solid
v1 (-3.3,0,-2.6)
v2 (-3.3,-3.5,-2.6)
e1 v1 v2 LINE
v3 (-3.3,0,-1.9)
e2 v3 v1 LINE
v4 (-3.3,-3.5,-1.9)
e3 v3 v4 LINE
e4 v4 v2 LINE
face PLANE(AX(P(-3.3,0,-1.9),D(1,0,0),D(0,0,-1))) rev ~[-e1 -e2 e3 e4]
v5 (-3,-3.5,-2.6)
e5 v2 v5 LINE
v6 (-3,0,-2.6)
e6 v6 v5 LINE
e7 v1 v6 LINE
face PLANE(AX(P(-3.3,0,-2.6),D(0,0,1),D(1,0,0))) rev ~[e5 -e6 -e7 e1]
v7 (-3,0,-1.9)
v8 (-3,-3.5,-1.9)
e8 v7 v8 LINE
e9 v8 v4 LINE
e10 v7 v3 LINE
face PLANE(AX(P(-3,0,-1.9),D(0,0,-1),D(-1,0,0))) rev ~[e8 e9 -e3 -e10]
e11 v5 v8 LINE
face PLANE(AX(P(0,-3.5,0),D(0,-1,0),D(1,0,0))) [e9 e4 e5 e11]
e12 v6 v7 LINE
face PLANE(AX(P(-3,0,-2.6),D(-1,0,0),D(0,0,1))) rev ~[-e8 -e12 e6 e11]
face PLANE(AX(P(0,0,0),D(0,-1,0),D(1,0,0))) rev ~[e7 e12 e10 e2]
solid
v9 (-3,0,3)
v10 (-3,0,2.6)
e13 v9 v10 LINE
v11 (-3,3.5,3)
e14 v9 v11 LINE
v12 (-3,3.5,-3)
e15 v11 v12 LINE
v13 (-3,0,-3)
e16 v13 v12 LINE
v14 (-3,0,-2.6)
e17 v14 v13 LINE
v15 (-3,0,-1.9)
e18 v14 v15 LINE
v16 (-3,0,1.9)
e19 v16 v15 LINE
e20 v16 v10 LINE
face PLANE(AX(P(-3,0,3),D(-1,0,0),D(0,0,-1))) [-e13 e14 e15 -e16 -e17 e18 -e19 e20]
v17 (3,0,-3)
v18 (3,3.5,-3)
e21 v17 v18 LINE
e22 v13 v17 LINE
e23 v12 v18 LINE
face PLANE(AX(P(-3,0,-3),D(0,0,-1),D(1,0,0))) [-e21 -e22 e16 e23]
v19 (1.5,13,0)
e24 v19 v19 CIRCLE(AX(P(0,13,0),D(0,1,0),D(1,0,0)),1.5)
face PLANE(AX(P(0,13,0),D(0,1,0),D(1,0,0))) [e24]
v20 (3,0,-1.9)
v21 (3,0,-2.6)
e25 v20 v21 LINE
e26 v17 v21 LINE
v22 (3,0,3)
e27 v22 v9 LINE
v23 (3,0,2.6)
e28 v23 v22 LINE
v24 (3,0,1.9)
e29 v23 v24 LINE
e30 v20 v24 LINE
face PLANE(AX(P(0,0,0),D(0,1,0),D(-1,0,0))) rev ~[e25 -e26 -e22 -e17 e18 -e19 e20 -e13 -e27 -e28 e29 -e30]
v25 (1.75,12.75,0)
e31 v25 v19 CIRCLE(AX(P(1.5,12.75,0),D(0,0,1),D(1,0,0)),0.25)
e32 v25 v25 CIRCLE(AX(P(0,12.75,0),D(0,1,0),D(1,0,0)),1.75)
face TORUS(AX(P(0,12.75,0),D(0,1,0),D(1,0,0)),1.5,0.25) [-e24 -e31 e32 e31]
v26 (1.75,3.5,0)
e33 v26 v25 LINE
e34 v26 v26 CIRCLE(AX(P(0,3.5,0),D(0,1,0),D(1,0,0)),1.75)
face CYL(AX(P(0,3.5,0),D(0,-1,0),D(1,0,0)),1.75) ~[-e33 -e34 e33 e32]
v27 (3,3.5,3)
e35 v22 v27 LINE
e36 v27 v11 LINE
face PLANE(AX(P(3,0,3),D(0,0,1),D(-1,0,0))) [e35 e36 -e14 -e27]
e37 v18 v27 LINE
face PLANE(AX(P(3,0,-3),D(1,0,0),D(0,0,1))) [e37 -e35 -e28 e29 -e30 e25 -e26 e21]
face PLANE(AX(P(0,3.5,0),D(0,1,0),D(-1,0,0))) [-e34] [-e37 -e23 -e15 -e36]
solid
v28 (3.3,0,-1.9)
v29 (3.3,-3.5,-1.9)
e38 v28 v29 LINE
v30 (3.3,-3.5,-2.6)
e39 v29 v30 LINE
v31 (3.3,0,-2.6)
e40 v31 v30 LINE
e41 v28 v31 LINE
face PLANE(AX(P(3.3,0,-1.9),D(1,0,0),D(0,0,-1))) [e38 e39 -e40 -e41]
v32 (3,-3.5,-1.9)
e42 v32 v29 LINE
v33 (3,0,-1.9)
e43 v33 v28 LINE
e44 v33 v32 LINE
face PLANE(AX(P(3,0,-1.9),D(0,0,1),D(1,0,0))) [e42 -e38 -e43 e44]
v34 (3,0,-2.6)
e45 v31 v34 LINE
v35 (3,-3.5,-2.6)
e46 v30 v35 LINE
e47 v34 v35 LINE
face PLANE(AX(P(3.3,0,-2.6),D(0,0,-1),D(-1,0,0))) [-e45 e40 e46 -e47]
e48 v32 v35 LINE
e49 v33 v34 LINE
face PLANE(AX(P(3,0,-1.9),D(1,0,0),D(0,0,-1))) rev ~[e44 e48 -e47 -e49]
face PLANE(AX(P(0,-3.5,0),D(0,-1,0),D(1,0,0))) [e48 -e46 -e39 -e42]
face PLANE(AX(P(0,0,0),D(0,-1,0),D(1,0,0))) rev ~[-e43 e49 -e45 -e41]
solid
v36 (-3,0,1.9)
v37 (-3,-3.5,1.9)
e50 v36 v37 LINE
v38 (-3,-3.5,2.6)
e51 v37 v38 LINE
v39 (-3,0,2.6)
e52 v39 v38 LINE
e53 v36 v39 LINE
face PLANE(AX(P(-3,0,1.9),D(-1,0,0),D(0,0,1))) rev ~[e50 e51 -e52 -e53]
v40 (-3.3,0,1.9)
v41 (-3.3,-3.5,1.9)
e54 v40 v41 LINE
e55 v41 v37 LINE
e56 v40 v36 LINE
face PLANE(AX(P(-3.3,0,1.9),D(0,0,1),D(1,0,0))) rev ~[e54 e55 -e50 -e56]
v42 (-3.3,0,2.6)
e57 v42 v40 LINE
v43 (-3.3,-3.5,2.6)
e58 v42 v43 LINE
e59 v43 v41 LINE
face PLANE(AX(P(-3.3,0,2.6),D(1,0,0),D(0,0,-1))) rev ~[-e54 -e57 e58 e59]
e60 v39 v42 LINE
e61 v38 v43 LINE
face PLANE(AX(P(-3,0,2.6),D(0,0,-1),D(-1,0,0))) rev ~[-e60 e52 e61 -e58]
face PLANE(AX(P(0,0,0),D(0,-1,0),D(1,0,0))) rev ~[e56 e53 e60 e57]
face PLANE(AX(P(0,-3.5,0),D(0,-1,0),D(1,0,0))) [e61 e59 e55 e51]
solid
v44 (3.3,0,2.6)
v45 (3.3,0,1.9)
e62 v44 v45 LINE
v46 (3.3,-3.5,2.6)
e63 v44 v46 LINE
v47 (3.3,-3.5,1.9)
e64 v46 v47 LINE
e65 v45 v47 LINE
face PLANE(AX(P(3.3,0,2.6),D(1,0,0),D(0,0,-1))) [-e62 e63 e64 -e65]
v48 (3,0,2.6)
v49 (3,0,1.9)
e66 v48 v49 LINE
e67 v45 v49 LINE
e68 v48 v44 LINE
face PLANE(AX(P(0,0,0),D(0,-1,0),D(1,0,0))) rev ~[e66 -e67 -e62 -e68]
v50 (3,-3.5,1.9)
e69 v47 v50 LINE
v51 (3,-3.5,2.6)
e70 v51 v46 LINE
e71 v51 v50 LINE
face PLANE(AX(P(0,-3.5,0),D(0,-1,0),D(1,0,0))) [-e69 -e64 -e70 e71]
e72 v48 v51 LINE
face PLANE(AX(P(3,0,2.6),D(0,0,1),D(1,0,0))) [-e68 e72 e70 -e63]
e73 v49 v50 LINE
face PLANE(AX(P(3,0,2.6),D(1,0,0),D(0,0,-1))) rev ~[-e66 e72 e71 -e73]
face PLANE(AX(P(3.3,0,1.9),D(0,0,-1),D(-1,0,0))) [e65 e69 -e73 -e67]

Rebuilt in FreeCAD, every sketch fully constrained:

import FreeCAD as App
import Part
import Sketcher


def edges_at(feature, points):
    """Names of the edges that pass closest to the given points."""
    edges = feature.Shape.Edges
    near = lambda p: min(range(len(edges)), key=lambda i: edges[i].distToShape(Part.Vertex(*p))[0])
    return sorted({f"Edge{near(p) + 1}" for p in points})

doc = App.newDocument("Part")
body = doc.addObject("PartDesign::Body", "Body")
body.AllowCompound = True

sketch1 = body.newObject("Sketcher::SketchObject", "Sketch")
sketch1.AttachmentSupport = (doc.getObject("XZ_Plane"), [""])
sketch1.MapMode = "FlatFace"
sketch1.addGeometry(Part.LineSegment(App.Vector(3, -3, 0), App.Vector(-3, -3, 0)), False)
sketch1.addGeometry(Part.LineSegment(App.Vector(-3, -3, 0), App.Vector(-3, 3, 0)), False)
sketch1.addGeometry(Part.LineSegment(App.Vector(-3, 3, 0), App.Vector(3, 3, 0)), False)
sketch1.addGeometry(Part.LineSegment(App.Vector(3, 3, 0), App.Vector(3, -3, 0)), False)
sketch1.addConstraint(Sketcher.Constraint("Coincident", 0, 2, 1, 1))
sketch1.addConstraint(Sketcher.Constraint("Coincident", 1, 2, 2, 1))
sketch1.addConstraint(Sketcher.Constraint("Coincident", 2, 2, 3, 1))
sketch1.addConstraint(Sketcher.Constraint("Coincident", 3, 2, 0, 1))
sketch1.addConstraint(Sketcher.Constraint("Horizontal", 0))
sketch1.addConstraint(Sketcher.Constraint("Vertical", 1))
sketch1.addConstraint(Sketcher.Constraint("Horizontal", 2))
sketch1.addConstraint(Sketcher.Constraint("Vertical", 3))
sketch1.addConstraint(Sketcher.Constraint("Symmetric", 0, 2, 2, 2, -1, 1))
sketch1.addConstraint(Sketcher.Constraint("Equal", 2, 1))
sketch1.addConstraint(Sketcher.Constraint("DistanceX", 0, 2, 0, 1, 6.0))
pad1 = body.newObject("PartDesign::Pad", "Pad")
pad1.Profile = sketch1
pad1.Length = 3.5
pad1.Reversed = True

sketch2 = body.newObject("Sketcher::SketchObject", "Sketch001")
sketch2.AttachmentSupport = (doc.getObject("XZ_Plane"), [""])
sketch2.MapMode = "FlatFace"
sketch2.AttachmentOffset = App.Placement(App.Vector(0, 0, -3.5), App.Rotation())
sketch2.addGeometry(Part.Circle(App.Vector(0, 0, 0), App.Vector(0, 0, 1), 1.8), False)
sketch2.addConstraint(Sketcher.Constraint("Coincident", 0, 3, -1, 1))
sketch2.addConstraint(Sketcher.Constraint("Diameter", 0, 3.5))
pad2 = body.newObject("PartDesign::Pad", "Pad001")
pad2.Profile = sketch2
pad2.Length = 9.5
pad2.Reversed = True
doc.recompute()

fillet = body.newObject("PartDesign::Fillet", "Fillet")
fillet.Base = (pad2, edges_at(pad2, [(-1.75, 13, 0)]))
fillet.Radius = 0.25

sketch3 = body.newObject("Sketcher::SketchObject", "Sketch002")
sketch3.AttachmentSupport = (doc.getObject("XZ_Plane"), [""])
sketch3.MapMode = "FlatFace"
sketch3.addGeometry(Part.LineSegment(App.Vector(3.3, 2.6, 0), App.Vector(3, 2.6, 0)), False)
sketch3.addGeometry(Part.LineSegment(App.Vector(3, 2.6, 0), App.Vector(3, 1.9, 0)), False)
sketch3.addGeometry(Part.LineSegment(App.Vector(3, 1.9, 0), App.Vector(3.3, 1.9, 0)), False)
sketch3.addGeometry(Part.LineSegment(App.Vector(3.3, 1.9, 0), App.Vector(3.3, 2.6, 0)), False)
sketch3.addGeometry(Part.LineSegment(App.Vector(3.3, -1.9, 0), App.Vector(3, -1.9, 0)), False)
sketch3.addGeometry(Part.LineSegment(App.Vector(3, -1.9, 0), App.Vector(3, -2.6, 0)), False)
sketch3.addGeometry(Part.LineSegment(App.Vector(3, -2.6, 0), App.Vector(3.3, -2.6, 0)), False)
sketch3.addGeometry(Part.LineSegment(App.Vector(3.3, -2.6, 0), App.Vector(3.3, -1.9, 0)), False)
sketch3.addGeometry(Part.LineSegment(App.Vector(-3.3, -2.6, 0), App.Vector(-3, -2.6, 0)), False)
sketch3.addGeometry(Part.LineSegment(App.Vector(-3, -2.6, 0), App.Vector(-3, -1.9, 0)), False)
sketch3.addGeometry(Part.LineSegment(App.Vector(-3, -1.9, 0), App.Vector(-3.3, -1.9, 0)), False)
sketch3.addGeometry(Part.LineSegment(App.Vector(-3.3, -1.9, 0), App.Vector(-3.3, -2.6, 0)), False)
sketch3.addGeometry(Part.LineSegment(App.Vector(-3.3, 1.9, 0), App.Vector(-3, 1.9, 0)), False)
sketch3.addGeometry(Part.LineSegment(App.Vector(-3, 1.9, 0), App.Vector(-3, 2.6, 0)), False)
sketch3.addGeometry(Part.LineSegment(App.Vector(-3, 2.6, 0), App.Vector(-3.3, 2.6, 0)), False)
sketch3.addGeometry(Part.LineSegment(App.Vector(-3.3, 2.6, 0), App.Vector(-3.3, 1.9, 0)), False)
sketch3.addConstraint(Sketcher.Constraint("Coincident", 0, 2, 1, 1))
sketch3.addConstraint(Sketcher.Constraint("Coincident", 1, 2, 2, 1))
sketch3.addConstraint(Sketcher.Constraint("Coincident", 2, 2, 3, 1))
sketch3.addConstraint(Sketcher.Constraint("Coincident", 3, 2, 0, 1))
sketch3.addConstraint(Sketcher.Constraint("Coincident", 4, 2, 5, 1))
sketch3.addConstraint(Sketcher.Constraint("Coincident", 5, 2, 6, 1))
sketch3.addConstraint(Sketcher.Constraint("Coincident", 6, 2, 7, 1))
sketch3.addConstraint(Sketcher.Constraint("Coincident", 7, 2, 4, 1))
sketch3.addConstraint(Sketcher.Constraint("Coincident", 8, 2, 9, 1))
sketch3.addConstraint(Sketcher.Constraint("Coincident", 9, 2, 10, 1))
sketch3.addConstraint(Sketcher.Constraint("Coincident", 10, 2, 11, 1))
sketch3.addConstraint(Sketcher.Constraint("Coincident", 11, 2, 8, 1))
sketch3.addConstraint(Sketcher.Constraint("Coincident", 12, 2, 13, 1))
sketch3.addConstraint(Sketcher.Constraint("Coincident", 13, 2, 14, 1))
sketch3.addConstraint(Sketcher.Constraint("Coincident", 14, 2, 15, 1))
sketch3.addConstraint(Sketcher.Constraint("Coincident", 15, 2, 12, 1))
sketch3.addConstraint(Sketcher.Constraint("Horizontal", 0))
sketch3.addConstraint(Sketcher.Constraint("Vertical", 1))
sketch3.addConstraint(Sketcher.Constraint("Horizontal", 2))
sketch3.addConstraint(Sketcher.Constraint("Vertical", 3))
sketch3.addConstraint(Sketcher.Constraint("Horizontal", 4))
sketch3.addConstraint(Sketcher.Constraint("Vertical", 5))
sketch3.addConstraint(Sketcher.Constraint("Horizontal", 6))
sketch3.addConstraint(Sketcher.Constraint("Vertical", 7))
sketch3.addConstraint(Sketcher.Constraint("Horizontal", 8))
sketch3.addConstraint(Sketcher.Constraint("Vertical", 9))
sketch3.addConstraint(Sketcher.Constraint("Horizontal", 10))
sketch3.addConstraint(Sketcher.Constraint("Vertical", 11))
sketch3.addConstraint(Sketcher.Constraint("Horizontal", 12))
sketch3.addConstraint(Sketcher.Constraint("Vertical", 13))
sketch3.addConstraint(Sketcher.Constraint("Horizontal", 14))
sketch3.addConstraint(Sketcher.Constraint("Vertical", 15))
sketch3.addConstraint(Sketcher.Constraint("Symmetric", 0, 2, 8, 2, -1, 1))
sketch3.addConstraint(Sketcher.Constraint("Symmetric", 2, 2, 10, 2, -1, 1))
sketch3.addConstraint(Sketcher.Constraint("Symmetric", 4, 2, 12, 2, -1, 1))
sketch3.addConstraint(Sketcher.Constraint("Symmetric", 6, 2, 14, 2, -1, 1))
sketch3.addConstraint(Sketcher.Constraint("Symmetric", 5, 2, 8, 2, -2))
sketch3.addConstraint(Sketcher.Constraint("Symmetric", 7, 2, 10, 2, -2))
sketch3.addConstraint(Sketcher.Constraint("DistanceX", 0, 2, 0, 1, 0.3))
sketch3.addConstraint(Sketcher.Constraint("DistanceY", 1, 2, 1, 1, 0.7))
sketch3.addConstraint(Sketcher.Constraint("DistanceX", 8, 2, 5, 2, 6.0))
sketch3.addConstraint(Sketcher.Constraint("DistanceY", 4, 2, 1, 2, 3.8))
pad3 = body.newObject("PartDesign::Pad", "Pad002")
pad3.Profile = sketch3
pad3.Length = 3.5

doc.recompute()
